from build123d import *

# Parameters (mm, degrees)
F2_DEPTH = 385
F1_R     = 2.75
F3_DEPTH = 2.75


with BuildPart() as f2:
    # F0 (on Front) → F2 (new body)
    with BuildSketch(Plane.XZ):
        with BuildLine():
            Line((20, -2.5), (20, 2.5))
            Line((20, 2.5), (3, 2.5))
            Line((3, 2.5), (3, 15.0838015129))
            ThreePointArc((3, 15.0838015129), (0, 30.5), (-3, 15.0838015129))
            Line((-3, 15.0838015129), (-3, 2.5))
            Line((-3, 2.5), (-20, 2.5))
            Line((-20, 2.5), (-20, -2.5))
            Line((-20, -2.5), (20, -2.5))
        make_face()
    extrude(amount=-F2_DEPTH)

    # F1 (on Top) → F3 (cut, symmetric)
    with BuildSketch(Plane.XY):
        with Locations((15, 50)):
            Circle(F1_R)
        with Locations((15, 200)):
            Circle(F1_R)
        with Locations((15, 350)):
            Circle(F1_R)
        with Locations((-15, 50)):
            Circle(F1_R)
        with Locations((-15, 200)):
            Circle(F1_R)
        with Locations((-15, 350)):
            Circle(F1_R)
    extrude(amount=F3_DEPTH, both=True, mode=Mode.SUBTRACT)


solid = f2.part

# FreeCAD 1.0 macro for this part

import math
import FreeCAD as App
import Part
import Sketcher
Q = App.Units.Quantity

doc = App.newDocument("Part")
body = doc.addObject("PartDesign::Body", "Body")

# Sketch on XZ plane
sketch1 = doc.addObject("Sketcher::SketchObject", "Sketch")
body.addObject(sketch1)
sketch1.AttachmentSupport = (doc.XZ_Plane, [""])
sketch1.MapMode = "FlatFace"
sketch1.addGeometry([
    Part.LineSegment(App.Vector(20, -2.5, 0), App.Vector(20, 2.5, 0)),  # 0
    Part.LineSegment(App.Vector(20, 2.5, 0), App.Vector(3, 2.5, 0)),  # 1
    Part.LineSegment(App.Vector(3, 2.5, 0), App.Vector(3, 15.083802, 0)),  # 2
    Part.ArcOfCircle(Part.Circle(App.Vector(0, 22.5, 0), App.Vector(0, 0, 1), 8), math.radians(-67.975687), math.radians(247.975687)),  # 3
    Part.LineSegment(App.Vector(-3, 15.083802, 0), App.Vector(-3, 2.5, 0)),  # 4
    Part.LineSegment(App.Vector(-3, 2.5, 0), App.Vector(-20, 2.5, 0)),  # 5
    Part.LineSegment(App.Vector(-20, 2.5, 0), App.Vector(-20, -2.5, 0)),  # 6
    Part.LineSegment(App.Vector(-20, -2.5, 0), App.Vector(20, -2.5, 0)),  # 7
], False)
sketch1.addConstraint([
    Sketcher.Constraint("Coincident", 0, 2, 1, 1),
    Sketcher.Constraint("Coincident", 1, 2, 2, 1),
    Sketcher.Constraint("Coincident", 2, 2, 3, 1),
    Sketcher.Constraint("Coincident", 3, 2, 4, 1),
    Sketcher.Constraint("Coincident", 4, 2, 5, 1),
    Sketcher.Constraint("Coincident", 5, 2, 6, 1),
    Sketcher.Constraint("Coincident", 6, 2, 7, 1),
    Sketcher.Constraint("Coincident", 7, 2, 0, 1),
    Sketcher.Constraint("Vertical", 0),
    Sketcher.Constraint("Horizontal", 1),
    Sketcher.Constraint("Vertical", 2),
    Sketcher.Constraint("Vertical", 4),
    Sketcher.Constraint("Horizontal", 5),
    Sketcher.Constraint("Vertical", 6),
    Sketcher.Constraint("Horizontal", 7),
    Sketcher.Constraint("Symmetric", 0, 2, 6, 2, -1, 1),
    Sketcher.Constraint("Symmetric", 2, 2, 3, 2, -2),
    Sketcher.Constraint("Horizontal", 1, 2, 4, 2),
    Sketcher.Constraint("Radius", 3, Q("8 mm")),
    Sketcher.Constraint("DistanceX", 1, 2, 1, 1, Q("17 mm")),
    Sketcher.Constraint("DistanceX", 7, 1, 7, 2, Q("40 mm")),
    Sketcher.Constraint("DistanceY", 0, 1, 0, 2, Q("5 mm")),
    Sketcher.Constraint("DistanceY", 0, 2, 3, 3, Q("20 mm")),
])
pad1 = doc.addObject("PartDesign::Pad", "Pad")
body.addObject(pad1)
pad1.Profile = sketch1
pad1.Length = 385
pad1.Reversed = True

# Sketch on XY plane
sketch2 = doc.addObject("Sketcher::SketchObject", "Sketch001")
body.addObject(sketch2)
sketch2.AttachmentSupport = (doc.XY_Plane, [""])
sketch2.MapMode = "FlatFace"
sketch2.addGeometry([
    Part.Circle(App.Vector(15, 50, 0), App.Vector(0, 0, 1), 2.75),  # 0
    Part.Circle(App.Vector(15, 200, 0), App.Vector(0, 0, 1), 2.75),  # 1
    Part.Circle(App.Vector(15, 350, 0), App.Vector(0, 0, 1), 2.75),  # 2
    Part.Circle(App.Vector(-15, 50, 0), App.Vector(0, 0, 1), 2.75),  # 3
    Part.Circle(App.Vector(-15, 200, 0), App.Vector(0, 0, 1), 2.75),  # 4
    Part.Circle(App.Vector(-15, 350, 0), App.Vector(0, 0, 1), 2.75),  # 5
], False)
sketch2.addConstraint([
    Sketcher.Constraint("Equal", 0, 1),
    Sketcher.Constraint("Equal", 1, 2),
    Sketcher.Constraint("Equal", 2, 3),
    Sketcher.Constraint("Equal", 3, 4),
    Sketcher.Constraint("Equal", 4, 5),
    Sketcher.Constraint("Symmetric", 0, 3, 3, 3, -2),
    Sketcher.Constraint("Symmetric", 1, 3, 4, 3, -2),
    Sketcher.Constraint("Symmetric", 2, 3, 5, 3, -2),
    Sketcher.Constraint("Vertical", 0, 3, 1, 3),
    Sketcher.Constraint("Vertical", 1, 3, 2, 3),
    Sketcher.Constraint("Diameter", 0, Q("5.5 mm")),
    Sketcher.Constraint("DistanceX", -1, 1, 0, 3, Q("15 mm")),
    Sketcher.Constraint("DistanceY", -1, 1, 0, 3, Q("50 mm")),
    Sketcher.Constraint("DistanceY", -1, 1, 1, 3, Q("200 mm")),
    Sketcher.Constraint("DistanceY", -1, 1, 2, 3, Q("350 mm")),
])
pocket1 = doc.addObject("PartDesign::Pocket", "Pocket")
body.addObject(pocket1)
pocket1.Profile = sketch2
pocket1.Length = 5.5
pocket1.Midplane = True

doc.recompute()
